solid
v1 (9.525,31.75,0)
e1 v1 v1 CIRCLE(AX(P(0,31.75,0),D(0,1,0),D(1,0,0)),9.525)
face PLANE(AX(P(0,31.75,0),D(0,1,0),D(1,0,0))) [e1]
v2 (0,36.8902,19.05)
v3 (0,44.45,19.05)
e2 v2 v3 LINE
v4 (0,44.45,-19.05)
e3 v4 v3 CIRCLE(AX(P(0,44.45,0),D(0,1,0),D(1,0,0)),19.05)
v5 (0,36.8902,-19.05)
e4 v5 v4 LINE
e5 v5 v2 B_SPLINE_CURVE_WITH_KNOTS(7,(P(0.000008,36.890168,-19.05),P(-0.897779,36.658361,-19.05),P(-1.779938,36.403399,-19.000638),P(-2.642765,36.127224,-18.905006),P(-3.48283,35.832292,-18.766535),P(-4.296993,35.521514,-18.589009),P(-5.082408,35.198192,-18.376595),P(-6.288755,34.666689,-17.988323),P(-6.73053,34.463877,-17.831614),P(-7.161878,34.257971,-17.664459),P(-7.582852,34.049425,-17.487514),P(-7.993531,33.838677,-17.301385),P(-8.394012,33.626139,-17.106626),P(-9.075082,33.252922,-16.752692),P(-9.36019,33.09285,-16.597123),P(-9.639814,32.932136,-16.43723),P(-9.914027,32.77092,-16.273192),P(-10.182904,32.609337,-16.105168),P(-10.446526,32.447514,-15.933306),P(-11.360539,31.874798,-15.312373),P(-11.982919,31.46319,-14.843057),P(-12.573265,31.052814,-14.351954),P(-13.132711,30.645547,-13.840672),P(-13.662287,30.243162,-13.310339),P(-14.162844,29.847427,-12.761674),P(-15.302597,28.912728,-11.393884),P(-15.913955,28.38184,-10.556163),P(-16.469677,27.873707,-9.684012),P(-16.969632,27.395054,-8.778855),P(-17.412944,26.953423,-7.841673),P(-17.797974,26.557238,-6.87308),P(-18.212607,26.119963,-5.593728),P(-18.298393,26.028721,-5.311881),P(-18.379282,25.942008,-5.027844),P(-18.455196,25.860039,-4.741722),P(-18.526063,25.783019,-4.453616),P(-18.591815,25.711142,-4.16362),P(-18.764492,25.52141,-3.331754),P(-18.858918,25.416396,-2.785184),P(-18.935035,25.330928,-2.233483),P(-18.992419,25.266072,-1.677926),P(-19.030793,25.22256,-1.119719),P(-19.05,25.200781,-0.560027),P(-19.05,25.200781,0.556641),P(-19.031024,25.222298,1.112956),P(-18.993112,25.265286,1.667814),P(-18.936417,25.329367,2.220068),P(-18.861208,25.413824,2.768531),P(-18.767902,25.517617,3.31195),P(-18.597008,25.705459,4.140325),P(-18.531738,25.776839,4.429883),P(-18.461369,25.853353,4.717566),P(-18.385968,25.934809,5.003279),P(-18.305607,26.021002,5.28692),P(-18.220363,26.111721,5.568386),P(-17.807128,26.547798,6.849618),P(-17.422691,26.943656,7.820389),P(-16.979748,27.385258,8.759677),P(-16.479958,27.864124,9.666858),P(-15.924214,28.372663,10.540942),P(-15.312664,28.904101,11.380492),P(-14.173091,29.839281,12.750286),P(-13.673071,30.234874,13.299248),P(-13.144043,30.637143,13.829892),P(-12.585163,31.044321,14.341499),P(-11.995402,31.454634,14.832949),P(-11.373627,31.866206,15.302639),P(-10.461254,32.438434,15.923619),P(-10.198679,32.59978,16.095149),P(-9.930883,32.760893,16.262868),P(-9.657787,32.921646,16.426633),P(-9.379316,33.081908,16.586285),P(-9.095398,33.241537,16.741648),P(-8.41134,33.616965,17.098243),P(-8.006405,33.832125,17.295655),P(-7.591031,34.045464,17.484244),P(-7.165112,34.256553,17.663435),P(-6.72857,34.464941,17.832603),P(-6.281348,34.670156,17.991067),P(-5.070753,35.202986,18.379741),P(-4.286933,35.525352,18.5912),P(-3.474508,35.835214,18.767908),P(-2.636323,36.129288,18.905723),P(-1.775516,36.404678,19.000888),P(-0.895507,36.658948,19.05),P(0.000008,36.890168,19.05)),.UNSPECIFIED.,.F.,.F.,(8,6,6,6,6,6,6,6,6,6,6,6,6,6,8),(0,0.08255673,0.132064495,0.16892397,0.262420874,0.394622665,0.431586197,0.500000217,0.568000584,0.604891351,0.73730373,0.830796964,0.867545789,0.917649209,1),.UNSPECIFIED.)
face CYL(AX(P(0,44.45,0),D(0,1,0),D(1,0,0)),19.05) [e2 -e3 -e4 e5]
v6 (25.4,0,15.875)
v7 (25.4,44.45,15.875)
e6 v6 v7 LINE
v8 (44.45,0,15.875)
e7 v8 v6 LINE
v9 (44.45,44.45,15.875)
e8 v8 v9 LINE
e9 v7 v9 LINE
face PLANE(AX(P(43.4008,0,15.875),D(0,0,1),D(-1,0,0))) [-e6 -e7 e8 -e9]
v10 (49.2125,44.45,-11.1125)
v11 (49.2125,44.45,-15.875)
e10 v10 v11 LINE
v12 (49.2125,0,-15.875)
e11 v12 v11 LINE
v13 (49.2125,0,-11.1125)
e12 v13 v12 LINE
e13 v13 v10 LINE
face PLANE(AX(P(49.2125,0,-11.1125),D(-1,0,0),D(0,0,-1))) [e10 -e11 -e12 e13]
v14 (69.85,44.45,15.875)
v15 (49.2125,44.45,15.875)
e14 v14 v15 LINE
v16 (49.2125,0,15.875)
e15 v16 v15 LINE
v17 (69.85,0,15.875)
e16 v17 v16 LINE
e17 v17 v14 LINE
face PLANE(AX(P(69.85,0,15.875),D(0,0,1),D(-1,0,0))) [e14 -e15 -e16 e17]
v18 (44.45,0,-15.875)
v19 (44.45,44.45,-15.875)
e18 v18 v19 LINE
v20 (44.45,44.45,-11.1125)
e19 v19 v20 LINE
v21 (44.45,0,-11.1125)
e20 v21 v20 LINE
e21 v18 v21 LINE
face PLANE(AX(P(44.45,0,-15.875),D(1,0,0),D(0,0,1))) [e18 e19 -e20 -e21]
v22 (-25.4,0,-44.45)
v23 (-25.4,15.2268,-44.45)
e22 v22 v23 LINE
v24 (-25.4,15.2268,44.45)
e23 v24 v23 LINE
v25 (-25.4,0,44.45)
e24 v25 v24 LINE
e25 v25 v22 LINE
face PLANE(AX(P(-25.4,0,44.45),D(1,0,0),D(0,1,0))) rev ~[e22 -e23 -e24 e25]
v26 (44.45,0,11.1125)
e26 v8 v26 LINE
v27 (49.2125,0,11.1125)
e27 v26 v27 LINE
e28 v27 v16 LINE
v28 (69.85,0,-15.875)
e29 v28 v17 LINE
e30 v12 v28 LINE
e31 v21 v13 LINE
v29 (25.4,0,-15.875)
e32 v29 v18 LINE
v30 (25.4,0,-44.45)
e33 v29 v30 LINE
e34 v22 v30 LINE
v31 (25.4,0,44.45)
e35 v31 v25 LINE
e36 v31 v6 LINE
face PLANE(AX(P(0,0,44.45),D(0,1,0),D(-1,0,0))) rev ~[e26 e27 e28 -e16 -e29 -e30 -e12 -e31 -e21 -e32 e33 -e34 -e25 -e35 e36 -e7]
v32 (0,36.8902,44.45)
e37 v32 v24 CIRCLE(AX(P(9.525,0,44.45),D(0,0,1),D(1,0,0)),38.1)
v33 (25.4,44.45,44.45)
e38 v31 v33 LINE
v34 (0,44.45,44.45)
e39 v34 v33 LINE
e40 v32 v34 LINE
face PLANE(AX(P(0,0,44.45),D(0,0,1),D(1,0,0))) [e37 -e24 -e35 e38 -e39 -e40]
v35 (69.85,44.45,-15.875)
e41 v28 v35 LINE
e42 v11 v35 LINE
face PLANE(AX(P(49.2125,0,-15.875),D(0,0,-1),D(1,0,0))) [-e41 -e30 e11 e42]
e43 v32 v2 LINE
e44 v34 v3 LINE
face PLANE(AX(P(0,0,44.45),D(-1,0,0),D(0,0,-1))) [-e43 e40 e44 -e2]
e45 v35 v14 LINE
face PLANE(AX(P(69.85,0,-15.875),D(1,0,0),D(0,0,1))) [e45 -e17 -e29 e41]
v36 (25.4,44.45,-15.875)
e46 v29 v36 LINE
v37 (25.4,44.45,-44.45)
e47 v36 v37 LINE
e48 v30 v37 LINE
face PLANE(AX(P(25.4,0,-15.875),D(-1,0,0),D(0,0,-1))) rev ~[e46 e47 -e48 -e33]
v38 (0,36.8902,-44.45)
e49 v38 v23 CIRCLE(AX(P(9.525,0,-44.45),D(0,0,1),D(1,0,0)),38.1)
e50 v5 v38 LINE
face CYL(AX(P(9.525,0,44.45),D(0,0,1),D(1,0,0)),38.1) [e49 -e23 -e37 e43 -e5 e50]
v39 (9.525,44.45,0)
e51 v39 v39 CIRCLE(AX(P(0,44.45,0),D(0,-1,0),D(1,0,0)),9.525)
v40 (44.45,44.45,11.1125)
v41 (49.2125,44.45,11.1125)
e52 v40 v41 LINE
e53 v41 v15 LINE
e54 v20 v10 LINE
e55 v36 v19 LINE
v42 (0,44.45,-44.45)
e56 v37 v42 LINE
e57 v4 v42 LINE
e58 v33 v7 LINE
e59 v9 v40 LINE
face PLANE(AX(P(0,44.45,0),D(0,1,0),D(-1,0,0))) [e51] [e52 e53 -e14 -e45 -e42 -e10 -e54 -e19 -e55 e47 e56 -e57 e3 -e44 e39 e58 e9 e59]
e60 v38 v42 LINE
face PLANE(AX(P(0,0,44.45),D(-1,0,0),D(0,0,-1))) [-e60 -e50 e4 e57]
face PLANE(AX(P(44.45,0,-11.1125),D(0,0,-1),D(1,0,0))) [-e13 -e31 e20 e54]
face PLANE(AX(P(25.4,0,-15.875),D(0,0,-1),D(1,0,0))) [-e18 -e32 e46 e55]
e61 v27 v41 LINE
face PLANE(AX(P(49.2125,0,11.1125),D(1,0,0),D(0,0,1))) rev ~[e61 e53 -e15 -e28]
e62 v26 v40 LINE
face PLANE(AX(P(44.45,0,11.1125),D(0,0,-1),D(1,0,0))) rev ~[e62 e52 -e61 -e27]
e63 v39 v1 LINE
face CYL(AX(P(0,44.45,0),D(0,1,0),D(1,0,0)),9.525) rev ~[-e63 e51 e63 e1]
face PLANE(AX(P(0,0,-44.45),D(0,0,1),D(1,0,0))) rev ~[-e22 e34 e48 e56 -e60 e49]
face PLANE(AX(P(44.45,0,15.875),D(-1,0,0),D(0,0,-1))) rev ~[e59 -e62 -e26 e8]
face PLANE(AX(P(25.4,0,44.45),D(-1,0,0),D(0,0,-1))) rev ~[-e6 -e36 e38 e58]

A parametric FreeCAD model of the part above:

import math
import FreeCAD as App
import Part
import Sketcher
Q = App.Units.Quantity


def add_polygon(sketch, points):
    """Adds a closed chain of lines whose ends are joined by coincident constraints."""
    first, n = sketch.GeometryCount, len(points)
    for a, b in zip(points, points[1:] + points[:1]):
        sketch.addGeometry(Part.LineSegment(App.Vector(*a, 0), App.Vector(*b, 0)), False)
    for i in range(n):
        sketch.addConstraint(Sketcher.Constraint("Coincident", first + i, 2, first + (i + 1) % n, 1))

doc = App.newDocument("Part")
body = doc.addObject("PartDesign::Body", "Body")

# Sketch on XZ plane
sketch1 = body.newObject("Sketcher::SketchObject", "Sketch")
sketch1.AttachmentSupport = (doc.getObject("XZ_Plane"), [""])
sketch1.MapMode = "FlatFace"
add_polygon(sketch1, [(0, -44.5), (0, 44.5), (25.4, 44.5), (25.4, 15.9), (44.5, 15.9), (44.5, 11.1), (49.2, 11.1), (49.2, 15.9), (69.8, 15.9), (69.8, -15.9), (49.2, -15.9), (49.2, -11.1), (44.5, -11.1), (44.5, -15.9), (25.4, -15.9), (25.4, -44.5)])  # lines 0-15
sketch1.addConstraint([
    Sketcher.Constraint("Vertical", 0),
    Sketcher.Constraint("Horizontal", 1),
    Sketcher.Constraint("Vertical", 2),
    Sketcher.Constraint("Horizontal", 3),
    Sketcher.Constraint("Vertical", 4),
    Sketcher.Constraint("Horizontal", 5),
    Sketcher.Constraint("Vertical", 6),
    Sketcher.Constraint("Horizontal", 7),
    Sketcher.Constraint("Vertical", 8),
    Sketcher.Constraint("Horizontal", 9),
    Sketcher.Constraint("Vertical", 10),
    Sketcher.Constraint("Horizontal", 11),
    Sketcher.Constraint("Vertical", 12),
    Sketcher.Constraint("Horizontal", 13),
    Sketcher.Constraint("Vertical", 14),
    Sketcher.Constraint("Horizontal", 15),
    Sketcher.Constraint("Symmetric", 0, 2, 15, 2, -1, 1),
    Sketcher.Constraint("Symmetric", 6, 2, 9, 2, -1),
    Sketcher.Constraint("Symmetric", 4, 2, 11, 2, -1),
    Sketcher.Constraint("Symmetric", 2, 2, 13, 2, -1),
    Sketcher.Constraint("Horizontal", 3, 2, 6, 2),
    Sketcher.Constraint("Equal", 11, 4),
    Sketcher.Constraint("DistanceX", 3, 1, 3, 2, Q("0.75 in")),
    Sketcher.Constraint("DistanceY", 8, 2, 8, 1, Q("1.25 in")),
    Sketcher.Constraint("DistanceX", 1, 1, 1, 2, Q("1 in")),
    Sketcher.Constraint("DistanceX", 5, 1, 5, 2, Q("0.1875 in")),
    Sketcher.Constraint("DistanceY", 2, 2, 2, 1, Q("1.125 in")),
    Sketcher.Constraint("DistanceX", 2, 2, 7, 2, Q("1.75 in")),
])
pad1 = body.newObject("PartDesign::Pad", "Pad")
pad1.Profile = sketch1
pad1.Length = Q("1.75 in")
pad1.Reversed = True

# Sketch on XY plane
sketch2 = body.newObject("Sketcher::SketchObject", "Sketch001")
sketch2.AttachmentSupport = (doc.getObject("XY_Plane"), [""])
sketch2.MapMode = "FlatFace"
sketch2.AttachmentOffset = App.Placement(App.Vector(0, 0, 1.75 * 25.4), App.Rotation())
sketch2.addGeometry([
    Part.LineSegment(App.Vector(0, 0, 0), App.Vector(0, 37, 0)),
    Part.ArcOfCircle(Part.Circle(App.Vector(10, 0, 0), App.Vector(0, 0, 1), 38), math.radians(104), math.radians(156)),
    Part.LineSegment(App.Vector(-25, 15, 0), App.Vector(-25, 0, 0)),
    Part.LineSegment(App.Vector(-25, 0, 0), App.Vector(0, 0, 0)),
], False)
sketch2.addConstraint([
    Sketcher.Constraint("Coincident", 0, 2, 1, 1),
    Sketcher.Constraint("Coincident", 1, 2, 2, 1),
    Sketcher.Constraint("Coincident", 2, 2, 3, 1),
    Sketcher.Constraint("Coincident", 3, 2, 0, 1),
    Sketcher.Constraint("Vertical", 0),
    Sketcher.Constraint("Vertical", 2),
    Sketcher.Constraint("Horizontal", 3),
    Sketcher.Constraint("Coincident", 3, 2, -1, 1),
    Sketcher.Constraint("PointOnObject", 1, 3, -1),
    Sketcher.Constraint("Radius", 1, Q("1.5 in")),
    Sketcher.Constraint("DistanceX", 3, 1, 3, 2, Q("1 in")),
    Sketcher.Constraint("DistanceX", -1, 1, 1, 3, Q("0.375 in")),
])
pad2 = body.newObject("PartDesign::Pad", "Pad001")
pad2.Profile = sketch2
pad2.Length = Q("3.5 in")
pad2.Reversed = True

# Sketch on XZ plane
sketch3 = body.newObject("Sketcher::SketchObject", "Sketch002")
sketch3.AttachmentSupport = (doc.getObject("XZ_Plane"), [""])
sketch3.MapMode = "FlatFace"
sketch3.AttachmentOffset = App.Placement(App.Vector(0, 0, -1.75 * 25.4), App.Rotation())
sketch3.addGeometry([
    Part.Circle(App.Vector(0, 0, 0), App.Vector(0, 0, 1), 19),
    Part.Circle(App.Vector(0, 0, 0), App.Vector(0, 0, 1), 10),
], False)
sketch3.addConstraint([
    Sketcher.Constraint("Coincident", 0, 3, -1, 1),
    Sketcher.Constraint("Coincident", 1, 3, -1, 1),
    Sketcher.Constraint("Diameter", 0, Q("1.5 in")),
    Sketcher.Constraint("Diameter", 1, Q("0.75 in")),
])
pad3 = body.newObject("PartDesign::Pad", "Pad002")
pad3.Profile = sketch3
pad3.Length = Q("1 in")

# Sketch on XZ plane
sketch4 = body.newObject("Sketcher::SketchObject", "Sketch003")
sketch4.AttachmentSupport = (doc.getObject("XZ_Plane"), [""])
sketch4.MapMode = "FlatFace"
sketch4.AttachmentOffset = App.Placement(App.Vector(0, 0, -1.75 * 25.4), App.Rotation())
sketch4.addGeometry(Part.Circle(App.Vector(0, 0, 0), App.Vector(0, 0, 1), 10), False)
sketch4.addConstraint([
    Sketcher.Constraint("Coincident", 0, 3, -1, 1),
    Sketcher.Constraint("Diameter", 0, Q("0.75 in")),
])
pocket1 = body.newObject("PartDesign::Pocket", "Pocket")
pocket1.Profile = sketch4
pocket1.Length = Q("0.5 in")
pocket1.Reversed = True

doc.recompute()
